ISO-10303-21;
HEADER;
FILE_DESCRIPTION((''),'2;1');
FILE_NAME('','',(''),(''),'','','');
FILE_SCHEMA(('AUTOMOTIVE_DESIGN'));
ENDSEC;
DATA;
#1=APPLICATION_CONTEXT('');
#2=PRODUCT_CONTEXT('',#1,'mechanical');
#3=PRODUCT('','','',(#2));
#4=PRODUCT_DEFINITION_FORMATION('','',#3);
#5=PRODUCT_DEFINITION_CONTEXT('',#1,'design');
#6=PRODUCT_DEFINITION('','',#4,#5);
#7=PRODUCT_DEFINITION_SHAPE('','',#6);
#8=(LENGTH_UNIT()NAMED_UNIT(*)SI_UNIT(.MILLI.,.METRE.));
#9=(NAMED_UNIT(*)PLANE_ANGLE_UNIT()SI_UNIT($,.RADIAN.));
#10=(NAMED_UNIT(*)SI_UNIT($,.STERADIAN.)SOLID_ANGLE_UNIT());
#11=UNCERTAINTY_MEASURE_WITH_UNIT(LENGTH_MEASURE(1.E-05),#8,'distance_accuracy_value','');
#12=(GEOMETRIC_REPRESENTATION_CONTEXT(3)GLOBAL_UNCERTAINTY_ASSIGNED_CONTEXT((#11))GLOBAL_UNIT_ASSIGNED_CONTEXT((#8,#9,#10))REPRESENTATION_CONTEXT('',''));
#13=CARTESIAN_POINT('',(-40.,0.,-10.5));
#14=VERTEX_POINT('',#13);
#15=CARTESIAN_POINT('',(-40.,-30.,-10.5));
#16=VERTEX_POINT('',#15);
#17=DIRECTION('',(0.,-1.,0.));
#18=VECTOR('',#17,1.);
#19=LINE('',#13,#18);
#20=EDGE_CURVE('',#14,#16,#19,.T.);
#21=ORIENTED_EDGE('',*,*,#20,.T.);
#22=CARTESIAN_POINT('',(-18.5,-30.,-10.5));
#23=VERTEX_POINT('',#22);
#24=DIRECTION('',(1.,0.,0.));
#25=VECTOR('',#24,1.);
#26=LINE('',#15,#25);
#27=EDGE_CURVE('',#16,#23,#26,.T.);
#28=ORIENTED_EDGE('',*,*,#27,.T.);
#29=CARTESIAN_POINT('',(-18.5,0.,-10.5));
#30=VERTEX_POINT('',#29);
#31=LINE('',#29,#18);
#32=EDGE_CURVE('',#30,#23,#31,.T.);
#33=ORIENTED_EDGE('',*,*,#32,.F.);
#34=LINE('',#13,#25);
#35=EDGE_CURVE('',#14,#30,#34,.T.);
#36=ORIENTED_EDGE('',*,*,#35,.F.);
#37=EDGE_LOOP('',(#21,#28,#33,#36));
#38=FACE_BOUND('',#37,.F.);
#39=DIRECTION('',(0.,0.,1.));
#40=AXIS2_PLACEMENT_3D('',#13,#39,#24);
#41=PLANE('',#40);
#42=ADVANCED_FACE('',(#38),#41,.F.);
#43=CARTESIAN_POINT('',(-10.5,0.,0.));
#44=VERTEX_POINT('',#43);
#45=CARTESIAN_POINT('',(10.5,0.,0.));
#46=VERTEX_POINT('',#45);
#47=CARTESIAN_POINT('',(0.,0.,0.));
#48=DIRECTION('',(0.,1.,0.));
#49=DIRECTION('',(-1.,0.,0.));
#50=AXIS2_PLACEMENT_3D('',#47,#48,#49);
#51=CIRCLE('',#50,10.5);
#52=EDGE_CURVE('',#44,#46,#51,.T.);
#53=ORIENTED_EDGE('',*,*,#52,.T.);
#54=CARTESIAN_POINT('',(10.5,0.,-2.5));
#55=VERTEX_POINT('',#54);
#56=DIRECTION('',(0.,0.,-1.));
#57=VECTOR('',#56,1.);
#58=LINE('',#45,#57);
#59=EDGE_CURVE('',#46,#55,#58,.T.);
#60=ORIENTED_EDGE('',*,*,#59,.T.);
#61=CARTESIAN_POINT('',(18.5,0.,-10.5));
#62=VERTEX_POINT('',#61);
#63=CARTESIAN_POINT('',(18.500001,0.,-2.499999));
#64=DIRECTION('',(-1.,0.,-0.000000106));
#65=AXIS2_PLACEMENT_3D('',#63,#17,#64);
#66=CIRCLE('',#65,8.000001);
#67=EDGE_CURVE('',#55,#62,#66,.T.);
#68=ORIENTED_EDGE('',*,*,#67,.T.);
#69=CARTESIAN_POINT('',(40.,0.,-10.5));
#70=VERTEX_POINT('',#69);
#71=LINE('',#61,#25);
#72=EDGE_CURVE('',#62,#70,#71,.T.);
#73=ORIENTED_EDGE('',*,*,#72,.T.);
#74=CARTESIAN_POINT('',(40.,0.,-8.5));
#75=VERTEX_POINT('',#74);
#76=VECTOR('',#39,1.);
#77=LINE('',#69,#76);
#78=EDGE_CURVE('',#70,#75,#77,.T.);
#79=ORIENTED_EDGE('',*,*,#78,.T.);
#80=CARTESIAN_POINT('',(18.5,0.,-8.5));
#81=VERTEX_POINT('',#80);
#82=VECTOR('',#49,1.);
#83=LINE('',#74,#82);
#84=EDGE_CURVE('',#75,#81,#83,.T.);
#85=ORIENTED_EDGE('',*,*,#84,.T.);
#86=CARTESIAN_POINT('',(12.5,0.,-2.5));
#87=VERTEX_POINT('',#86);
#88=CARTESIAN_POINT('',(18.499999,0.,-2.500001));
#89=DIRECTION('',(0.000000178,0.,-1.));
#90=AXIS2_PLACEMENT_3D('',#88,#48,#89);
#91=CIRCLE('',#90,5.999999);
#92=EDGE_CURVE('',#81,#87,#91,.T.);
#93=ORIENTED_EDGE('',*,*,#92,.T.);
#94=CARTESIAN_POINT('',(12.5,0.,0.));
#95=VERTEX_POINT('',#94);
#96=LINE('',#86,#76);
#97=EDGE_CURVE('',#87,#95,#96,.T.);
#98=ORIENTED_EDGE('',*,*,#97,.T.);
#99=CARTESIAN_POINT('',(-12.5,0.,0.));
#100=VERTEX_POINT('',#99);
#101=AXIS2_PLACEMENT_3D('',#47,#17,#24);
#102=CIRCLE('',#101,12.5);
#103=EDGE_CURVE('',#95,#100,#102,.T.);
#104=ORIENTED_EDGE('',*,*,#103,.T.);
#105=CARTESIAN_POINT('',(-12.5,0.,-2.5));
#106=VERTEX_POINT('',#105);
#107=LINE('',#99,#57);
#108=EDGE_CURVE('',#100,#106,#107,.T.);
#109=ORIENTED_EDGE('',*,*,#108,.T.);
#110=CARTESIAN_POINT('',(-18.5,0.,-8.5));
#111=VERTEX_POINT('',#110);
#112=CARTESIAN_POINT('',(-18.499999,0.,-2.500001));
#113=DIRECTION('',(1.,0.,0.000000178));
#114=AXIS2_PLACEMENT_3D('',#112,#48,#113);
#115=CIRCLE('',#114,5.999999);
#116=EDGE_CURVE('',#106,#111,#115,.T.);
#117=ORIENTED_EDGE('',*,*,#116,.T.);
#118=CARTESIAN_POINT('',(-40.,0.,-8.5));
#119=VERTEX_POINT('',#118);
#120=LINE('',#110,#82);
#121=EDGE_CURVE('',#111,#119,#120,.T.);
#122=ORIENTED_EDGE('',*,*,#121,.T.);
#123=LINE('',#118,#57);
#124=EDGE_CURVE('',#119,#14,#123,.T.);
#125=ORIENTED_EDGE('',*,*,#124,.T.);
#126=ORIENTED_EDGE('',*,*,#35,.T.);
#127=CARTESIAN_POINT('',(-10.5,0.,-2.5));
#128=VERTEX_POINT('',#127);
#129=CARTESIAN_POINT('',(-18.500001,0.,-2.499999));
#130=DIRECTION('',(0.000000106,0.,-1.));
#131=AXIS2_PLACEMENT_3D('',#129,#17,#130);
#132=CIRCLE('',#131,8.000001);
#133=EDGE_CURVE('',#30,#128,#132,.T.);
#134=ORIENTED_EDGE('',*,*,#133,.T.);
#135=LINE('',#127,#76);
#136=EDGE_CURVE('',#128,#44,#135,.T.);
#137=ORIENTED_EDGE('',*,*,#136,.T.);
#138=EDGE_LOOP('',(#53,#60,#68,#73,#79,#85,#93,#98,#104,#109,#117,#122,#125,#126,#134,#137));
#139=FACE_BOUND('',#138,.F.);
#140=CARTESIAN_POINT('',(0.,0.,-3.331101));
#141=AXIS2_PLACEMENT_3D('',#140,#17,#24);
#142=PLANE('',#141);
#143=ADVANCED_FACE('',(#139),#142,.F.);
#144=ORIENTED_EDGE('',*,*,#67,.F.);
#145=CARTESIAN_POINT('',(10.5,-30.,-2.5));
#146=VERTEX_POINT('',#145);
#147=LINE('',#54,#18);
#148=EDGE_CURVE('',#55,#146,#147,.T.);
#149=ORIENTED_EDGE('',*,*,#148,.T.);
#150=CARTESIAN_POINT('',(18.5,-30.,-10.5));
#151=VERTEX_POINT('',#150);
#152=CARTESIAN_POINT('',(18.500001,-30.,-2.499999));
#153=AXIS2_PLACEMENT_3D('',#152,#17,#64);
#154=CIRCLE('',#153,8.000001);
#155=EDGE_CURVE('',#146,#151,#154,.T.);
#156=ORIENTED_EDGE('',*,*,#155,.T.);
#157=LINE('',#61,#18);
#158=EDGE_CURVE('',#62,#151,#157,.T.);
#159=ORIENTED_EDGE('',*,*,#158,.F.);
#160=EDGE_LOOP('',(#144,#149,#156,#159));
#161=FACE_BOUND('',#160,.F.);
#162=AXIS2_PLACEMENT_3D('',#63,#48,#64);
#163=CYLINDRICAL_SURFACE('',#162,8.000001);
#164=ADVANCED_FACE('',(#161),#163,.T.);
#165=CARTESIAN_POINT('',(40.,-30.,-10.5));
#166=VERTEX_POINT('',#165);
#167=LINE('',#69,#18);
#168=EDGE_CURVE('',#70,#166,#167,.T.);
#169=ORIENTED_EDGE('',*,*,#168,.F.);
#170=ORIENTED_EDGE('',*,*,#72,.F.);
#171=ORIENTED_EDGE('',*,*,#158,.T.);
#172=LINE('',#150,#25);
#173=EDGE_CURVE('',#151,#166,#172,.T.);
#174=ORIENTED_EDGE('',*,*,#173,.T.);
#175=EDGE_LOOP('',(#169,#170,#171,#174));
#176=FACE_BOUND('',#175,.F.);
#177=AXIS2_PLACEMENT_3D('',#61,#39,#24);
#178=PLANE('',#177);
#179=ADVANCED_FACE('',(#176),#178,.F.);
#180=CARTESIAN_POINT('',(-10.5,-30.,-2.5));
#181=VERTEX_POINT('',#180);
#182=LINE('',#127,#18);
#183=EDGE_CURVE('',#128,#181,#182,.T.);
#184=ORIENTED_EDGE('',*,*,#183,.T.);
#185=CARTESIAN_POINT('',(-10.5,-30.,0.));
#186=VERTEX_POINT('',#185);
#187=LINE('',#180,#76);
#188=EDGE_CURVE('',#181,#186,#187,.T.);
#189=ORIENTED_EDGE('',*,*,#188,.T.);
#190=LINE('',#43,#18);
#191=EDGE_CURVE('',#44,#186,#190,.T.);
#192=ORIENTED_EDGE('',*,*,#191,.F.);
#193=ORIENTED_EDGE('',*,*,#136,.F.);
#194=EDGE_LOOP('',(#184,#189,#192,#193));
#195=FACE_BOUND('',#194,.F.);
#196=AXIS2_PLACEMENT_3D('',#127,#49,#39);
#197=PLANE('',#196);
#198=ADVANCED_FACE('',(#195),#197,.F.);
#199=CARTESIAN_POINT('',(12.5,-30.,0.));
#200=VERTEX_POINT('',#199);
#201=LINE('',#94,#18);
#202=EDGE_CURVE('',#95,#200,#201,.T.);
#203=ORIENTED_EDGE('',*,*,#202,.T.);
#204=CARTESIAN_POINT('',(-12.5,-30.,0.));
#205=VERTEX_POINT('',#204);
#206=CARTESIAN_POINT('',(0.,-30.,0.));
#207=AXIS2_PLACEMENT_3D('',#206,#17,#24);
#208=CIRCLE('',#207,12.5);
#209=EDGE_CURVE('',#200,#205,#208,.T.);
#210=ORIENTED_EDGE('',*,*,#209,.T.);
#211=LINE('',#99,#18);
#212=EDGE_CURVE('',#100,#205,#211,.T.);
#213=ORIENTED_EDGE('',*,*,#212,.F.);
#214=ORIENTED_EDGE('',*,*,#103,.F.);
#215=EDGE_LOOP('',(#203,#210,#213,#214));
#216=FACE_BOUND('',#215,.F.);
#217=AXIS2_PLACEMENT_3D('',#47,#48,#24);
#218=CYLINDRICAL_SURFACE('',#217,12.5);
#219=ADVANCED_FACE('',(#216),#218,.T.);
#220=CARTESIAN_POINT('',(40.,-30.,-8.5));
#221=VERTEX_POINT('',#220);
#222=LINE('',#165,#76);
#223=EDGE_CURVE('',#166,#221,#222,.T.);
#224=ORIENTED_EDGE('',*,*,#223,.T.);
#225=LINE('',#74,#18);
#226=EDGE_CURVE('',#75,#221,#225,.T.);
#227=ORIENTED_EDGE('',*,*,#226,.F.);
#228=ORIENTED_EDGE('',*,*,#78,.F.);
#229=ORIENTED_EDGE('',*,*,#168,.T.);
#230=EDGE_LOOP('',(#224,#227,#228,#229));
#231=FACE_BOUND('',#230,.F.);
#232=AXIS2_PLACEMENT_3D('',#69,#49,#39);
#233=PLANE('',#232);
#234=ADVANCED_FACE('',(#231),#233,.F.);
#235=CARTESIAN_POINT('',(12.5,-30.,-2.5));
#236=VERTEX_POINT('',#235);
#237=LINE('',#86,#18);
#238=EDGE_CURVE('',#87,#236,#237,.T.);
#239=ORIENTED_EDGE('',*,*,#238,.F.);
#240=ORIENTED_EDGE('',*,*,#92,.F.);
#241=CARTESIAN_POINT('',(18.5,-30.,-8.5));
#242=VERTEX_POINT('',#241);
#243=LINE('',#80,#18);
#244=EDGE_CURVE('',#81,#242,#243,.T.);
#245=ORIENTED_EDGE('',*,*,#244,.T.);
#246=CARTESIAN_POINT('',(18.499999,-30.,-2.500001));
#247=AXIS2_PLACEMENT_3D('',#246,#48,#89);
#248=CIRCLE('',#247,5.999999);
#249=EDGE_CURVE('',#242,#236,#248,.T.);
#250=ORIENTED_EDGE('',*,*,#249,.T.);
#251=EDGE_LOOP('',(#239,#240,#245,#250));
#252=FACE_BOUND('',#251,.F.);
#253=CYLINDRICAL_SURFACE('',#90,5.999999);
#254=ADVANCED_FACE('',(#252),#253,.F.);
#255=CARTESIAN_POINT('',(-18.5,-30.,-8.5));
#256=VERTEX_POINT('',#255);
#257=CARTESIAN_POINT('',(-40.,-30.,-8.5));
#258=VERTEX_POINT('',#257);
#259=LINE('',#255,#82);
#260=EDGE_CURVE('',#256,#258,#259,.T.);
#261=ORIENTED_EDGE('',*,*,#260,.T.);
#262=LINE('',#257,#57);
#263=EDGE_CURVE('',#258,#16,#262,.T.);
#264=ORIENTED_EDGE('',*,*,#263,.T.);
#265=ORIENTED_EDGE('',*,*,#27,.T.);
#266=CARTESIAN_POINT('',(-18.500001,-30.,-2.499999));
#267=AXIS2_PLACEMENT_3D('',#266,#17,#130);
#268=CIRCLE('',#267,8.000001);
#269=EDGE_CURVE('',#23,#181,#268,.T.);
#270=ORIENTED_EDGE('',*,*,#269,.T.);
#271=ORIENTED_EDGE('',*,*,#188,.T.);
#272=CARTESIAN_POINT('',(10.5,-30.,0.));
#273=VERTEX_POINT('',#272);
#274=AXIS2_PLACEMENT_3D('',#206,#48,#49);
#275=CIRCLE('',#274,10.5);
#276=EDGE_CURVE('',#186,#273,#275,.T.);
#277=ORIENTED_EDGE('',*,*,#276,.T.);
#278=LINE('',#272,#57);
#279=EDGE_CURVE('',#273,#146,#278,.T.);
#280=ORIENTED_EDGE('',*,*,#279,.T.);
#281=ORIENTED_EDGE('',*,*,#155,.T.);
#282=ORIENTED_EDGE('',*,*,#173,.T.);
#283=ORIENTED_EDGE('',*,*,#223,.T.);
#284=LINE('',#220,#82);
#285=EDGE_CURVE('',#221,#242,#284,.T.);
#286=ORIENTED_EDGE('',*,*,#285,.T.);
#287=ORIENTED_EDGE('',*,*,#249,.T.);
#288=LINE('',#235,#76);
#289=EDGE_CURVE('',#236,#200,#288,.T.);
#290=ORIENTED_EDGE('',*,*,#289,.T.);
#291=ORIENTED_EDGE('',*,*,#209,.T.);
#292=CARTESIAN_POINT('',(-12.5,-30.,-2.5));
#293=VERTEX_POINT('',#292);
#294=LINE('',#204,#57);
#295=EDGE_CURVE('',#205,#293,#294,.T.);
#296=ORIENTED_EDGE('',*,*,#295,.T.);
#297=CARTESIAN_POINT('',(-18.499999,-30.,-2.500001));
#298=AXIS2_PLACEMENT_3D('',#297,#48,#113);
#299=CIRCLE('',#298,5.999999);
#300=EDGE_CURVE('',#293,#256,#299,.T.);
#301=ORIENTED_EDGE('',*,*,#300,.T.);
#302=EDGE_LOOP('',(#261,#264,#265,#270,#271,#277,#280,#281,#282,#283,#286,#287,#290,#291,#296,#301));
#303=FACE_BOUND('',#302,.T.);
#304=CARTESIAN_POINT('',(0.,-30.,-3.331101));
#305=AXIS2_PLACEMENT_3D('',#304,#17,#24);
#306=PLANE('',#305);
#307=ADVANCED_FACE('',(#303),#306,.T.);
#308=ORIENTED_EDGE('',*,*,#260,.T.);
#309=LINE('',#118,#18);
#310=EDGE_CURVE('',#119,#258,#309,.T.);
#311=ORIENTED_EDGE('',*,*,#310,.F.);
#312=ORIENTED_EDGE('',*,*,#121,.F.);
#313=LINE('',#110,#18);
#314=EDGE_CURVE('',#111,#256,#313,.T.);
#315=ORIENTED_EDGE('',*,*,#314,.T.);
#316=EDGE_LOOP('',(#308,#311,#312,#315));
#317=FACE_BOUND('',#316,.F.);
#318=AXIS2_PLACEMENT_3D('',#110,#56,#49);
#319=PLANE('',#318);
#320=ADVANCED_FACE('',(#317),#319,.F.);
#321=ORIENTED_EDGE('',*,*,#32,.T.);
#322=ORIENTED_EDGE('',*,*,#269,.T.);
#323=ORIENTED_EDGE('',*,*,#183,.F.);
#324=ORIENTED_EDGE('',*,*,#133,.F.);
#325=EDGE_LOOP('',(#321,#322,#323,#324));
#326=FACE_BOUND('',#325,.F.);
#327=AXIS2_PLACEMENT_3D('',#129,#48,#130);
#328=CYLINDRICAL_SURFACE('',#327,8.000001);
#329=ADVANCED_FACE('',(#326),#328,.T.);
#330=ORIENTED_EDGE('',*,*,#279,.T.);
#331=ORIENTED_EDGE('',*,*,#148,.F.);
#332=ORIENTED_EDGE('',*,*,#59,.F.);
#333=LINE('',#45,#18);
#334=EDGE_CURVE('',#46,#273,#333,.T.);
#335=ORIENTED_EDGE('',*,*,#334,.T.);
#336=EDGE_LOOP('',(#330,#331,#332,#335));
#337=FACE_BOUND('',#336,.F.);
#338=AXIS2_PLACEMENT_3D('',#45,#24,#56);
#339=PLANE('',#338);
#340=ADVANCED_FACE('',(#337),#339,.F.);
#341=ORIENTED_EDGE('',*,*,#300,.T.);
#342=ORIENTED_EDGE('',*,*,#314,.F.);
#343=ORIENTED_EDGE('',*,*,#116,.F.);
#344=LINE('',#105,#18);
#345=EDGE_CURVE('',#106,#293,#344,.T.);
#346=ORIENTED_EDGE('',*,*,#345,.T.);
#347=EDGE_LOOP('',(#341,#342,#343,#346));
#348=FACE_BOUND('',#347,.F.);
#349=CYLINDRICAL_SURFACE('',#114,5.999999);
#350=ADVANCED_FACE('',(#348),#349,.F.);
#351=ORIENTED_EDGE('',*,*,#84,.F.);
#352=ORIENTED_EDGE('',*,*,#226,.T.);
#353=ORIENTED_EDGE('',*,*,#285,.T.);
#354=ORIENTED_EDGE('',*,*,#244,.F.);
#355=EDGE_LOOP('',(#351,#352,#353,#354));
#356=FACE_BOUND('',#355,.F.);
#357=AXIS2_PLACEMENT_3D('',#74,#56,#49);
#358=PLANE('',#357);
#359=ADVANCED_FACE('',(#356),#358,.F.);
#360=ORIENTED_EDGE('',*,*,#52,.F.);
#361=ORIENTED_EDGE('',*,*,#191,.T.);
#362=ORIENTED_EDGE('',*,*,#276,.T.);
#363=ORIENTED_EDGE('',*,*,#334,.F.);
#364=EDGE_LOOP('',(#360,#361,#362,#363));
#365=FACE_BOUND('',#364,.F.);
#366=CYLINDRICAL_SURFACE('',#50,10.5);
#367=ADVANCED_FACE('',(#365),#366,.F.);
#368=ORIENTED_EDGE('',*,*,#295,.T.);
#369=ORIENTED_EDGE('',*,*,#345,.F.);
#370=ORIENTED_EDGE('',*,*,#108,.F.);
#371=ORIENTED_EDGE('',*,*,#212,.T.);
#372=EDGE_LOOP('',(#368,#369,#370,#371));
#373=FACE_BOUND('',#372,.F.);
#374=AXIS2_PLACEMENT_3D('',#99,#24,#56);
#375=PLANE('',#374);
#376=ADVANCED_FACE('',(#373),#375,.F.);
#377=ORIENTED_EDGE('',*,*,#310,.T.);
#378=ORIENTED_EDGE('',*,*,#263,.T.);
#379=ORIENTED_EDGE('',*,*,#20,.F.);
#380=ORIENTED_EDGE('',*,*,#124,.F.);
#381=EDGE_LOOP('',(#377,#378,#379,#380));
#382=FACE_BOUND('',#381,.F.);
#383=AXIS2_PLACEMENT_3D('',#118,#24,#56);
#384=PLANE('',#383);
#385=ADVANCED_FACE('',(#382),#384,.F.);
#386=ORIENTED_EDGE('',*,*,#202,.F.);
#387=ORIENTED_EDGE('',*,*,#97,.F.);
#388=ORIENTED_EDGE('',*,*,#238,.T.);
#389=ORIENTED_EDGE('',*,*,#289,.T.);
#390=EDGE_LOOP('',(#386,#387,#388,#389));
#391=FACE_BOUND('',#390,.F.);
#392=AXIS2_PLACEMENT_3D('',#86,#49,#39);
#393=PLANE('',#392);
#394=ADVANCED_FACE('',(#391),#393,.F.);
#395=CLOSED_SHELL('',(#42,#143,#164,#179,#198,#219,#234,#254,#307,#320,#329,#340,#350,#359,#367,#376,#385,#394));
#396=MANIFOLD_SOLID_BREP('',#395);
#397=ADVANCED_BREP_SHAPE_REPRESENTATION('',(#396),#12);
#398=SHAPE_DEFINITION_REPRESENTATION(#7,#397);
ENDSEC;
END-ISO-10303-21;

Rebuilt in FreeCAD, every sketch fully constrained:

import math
import FreeCAD as App
import Part
import Sketcher
Q = App.Units.Quantity

doc = App.newDocument("Part")
body = doc.addObject("PartDesign::Body", "Body")

# Sketch on XZ plane
sketch1 = doc.addObject("Sketcher::SketchObject", "Sketch")
body.addObject(sketch1)
sketch1.AttachmentSupport = (doc.XZ_Plane, [""])
sketch1.MapMode = "FlatFace"
sketch1.addGeometry(Part.ArcOfCircle(Part.Circle(App.Vector(0, 0, 0), App.Vector(0, 0, 1), 10.5), math.radians(0), math.radians(180)), False)
sketch1.addGeometry(Part.LineSegment(App.Vector(10.5, 0, 0), App.Vector(10.5, -2.5, 0)), False)
sketch1.addGeometry(Part.ArcOfCircle(Part.Circle(App.Vector(18.5, -2.5, 0), App.Vector(0, 0, 1), 8), math.radians(-180), math.radians(-90)), False)
sketch1.addGeometry(Part.LineSegment(App.Vector(18.5, -10.5, 0), App.Vector(40, -10.5, 0)), False)
sketch1.addGeometry(Part.LineSegment(App.Vector(40, -10.5, 0), App.Vector(40, -8.5, 0)), False)
sketch1.addGeometry(Part.LineSegment(App.Vector(40, -8.5, 0), App.Vector(18.5, -8.5, 0)), False)
sketch1.addGeometry(Part.ArcOfCircle(Part.Circle(App.Vector(18.5, -2.5, 0), App.Vector(0, 0, 1), 6), math.radians(180), math.radians(270)), False)
sketch1.addGeometry(Part.LineSegment(App.Vector(12.5, -2.5, 0), App.Vector(12.5, 0, 0)), False)
sketch1.addGeometry(Part.ArcOfCircle(Part.Circle(App.Vector(0, 0, 0), App.Vector(0, 0, 1), 12.5), math.radians(0), math.radians(180)), False)
sketch1.addGeometry(Part.LineSegment(App.Vector(-12.5, 0, 0), App.Vector(-12.5, -2.5, 0)), False)
sketch1.addGeometry(Part.ArcOfCircle(Part.Circle(App.Vector(-18.5, -2.5, 0), App.Vector(0, 0, 1), 6), math.radians(-90), math.radians(0)), False)
sketch1.addGeometry(Part.LineSegment(App.Vector(-18.5, -8.5, 0), App.Vector(-40, -8.5, 0)), False)
sketch1.addGeometry(Part.LineSegment(App.Vector(-40, -8.5, 0), App.Vector(-40, -10.5, 0)), False)
sketch1.addGeometry(Part.LineSegment(App.Vector(-40, -10.5, 0), App.Vector(-18.5, -10.5, 0)), False)
sketch1.addGeometry(Part.ArcOfCircle(Part.Circle(App.Vector(-18.5, -2.5, 0), App.Vector(0, 0, 1), 8), math.radians(-90), math.radians(0)), False)
sketch1.addGeometry(Part.LineSegment(App.Vector(-10.5, -2.5, 0), App.Vector(-10.5, 0, 0)), False)
sketch1.addConstraint(Sketcher.Constraint("Tangent", 0, 1, 1, 1))
sketch1.addConstraint(Sketcher.Constraint("Tangent", 1, 2, 2, 1))
sketch1.addConstraint(Sketcher.Constraint("Tangent", 2, 2, 3, 1))
sketch1.addConstraint(Sketcher.Constraint("Coincident", 3, 2, 4, 1))
sketch1.addConstraint(Sketcher.Constraint("Coincident", 4, 2, 5, 1))
sketch1.addConstraint(Sketcher.Constraint("Tangent", 5, 2, 6, 2))
sketch1.addConstraint(Sketcher.Constraint("Tangent", 6, 1, 7, 1))
sketch1.addConstraint(Sketcher.Constraint("Tangent", 7, 2, 8, 1))
sketch1.addConstraint(Sketcher.Constraint("Tangent", 8, 2, 9, 1))
sketch1.addConstraint(Sketcher.Constraint("Tangent", 9, 2, 10, 2))
sketch1.addConstraint(Sketcher.Constraint("Tangent", 10, 1, 11, 1))
sketch1.addConstraint(Sketcher.Constraint("Coincident", 11, 2, 12, 1))
sketch1.addConstraint(Sketcher.Constraint("Coincident", 12, 2, 13, 1))
sketch1.addConstraint(Sketcher.Constraint("Tangent", 13, 2, 14, 1))
sketch1.addConstraint(Sketcher.Constraint("Tangent", 14, 2, 15, 1))
sketch1.addConstraint(Sketcher.Constraint("Tangent", 15, 2, 0, 2))
sketch1.addConstraint(Sketcher.Constraint("Vertical", 1))
sketch1.addConstraint(Sketcher.Constraint("Horizontal", 3))
sketch1.addConstraint(Sketcher.Constraint("Vertical", 4))
sketch1.addConstraint(Sketcher.Constraint("Horizontal", 5))
sketch1.addConstraint(Sketcher.Constraint("Vertical", 7))
sketch1.addConstraint(Sketcher.Constraint("Vertical", 9))
sketch1.addConstraint(Sketcher.Constraint("Horizontal", 11))
sketch1.addConstraint(Sketcher.Constraint("Vertical", 12))
sketch1.addConstraint(Sketcher.Constraint("Horizontal", 13))
sketch1.addConstraint(Sketcher.Constraint("Vertical", 15))
sketch1.addConstraint(Sketcher.Constraint("Coincident", 0, 3, -1, 1))
sketch1.addConstraint(Sketcher.Constraint("Coincident", 8, 3, -1, 1))
sketch1.addConstraint(Sketcher.Constraint("Coincident", 6, 3, 2, 3))
sketch1.addConstraint(Sketcher.Constraint("Coincident", 14, 3, 10, 3))
sketch1.addConstraint(Sketcher.Constraint("Equal", 6, 10))
sketch1.addConstraint(Sketcher.Constraint("Symmetric", 4, 2, 11, 2, -2))
sketch1.addConstraint(Sketcher.Constraint("Radius", 2, Q("8.000001 mm")))
sketch1.addConstraint(Sketcher.Constraint("Radius", 6, Q("5.999999 mm")))
sketch1.addConstraint(Sketcher.Constraint("Radius", 0, Q("10.5 mm")))
sketch1.addConstraint(Sketcher.Constraint("DistanceX", 3, 1, 3, 2, Q("21.5 mm")))
sketch1.addConstraint(Sketcher.Constraint("DistanceY", 1, 2, 1, 1, Q("2.5 mm")))
pad1 = doc.addObject("PartDesign::Pad", "Pad")
body.addObject(pad1)
pad1.Profile = sketch1
pad1.Length = 30

doc.recompute()
